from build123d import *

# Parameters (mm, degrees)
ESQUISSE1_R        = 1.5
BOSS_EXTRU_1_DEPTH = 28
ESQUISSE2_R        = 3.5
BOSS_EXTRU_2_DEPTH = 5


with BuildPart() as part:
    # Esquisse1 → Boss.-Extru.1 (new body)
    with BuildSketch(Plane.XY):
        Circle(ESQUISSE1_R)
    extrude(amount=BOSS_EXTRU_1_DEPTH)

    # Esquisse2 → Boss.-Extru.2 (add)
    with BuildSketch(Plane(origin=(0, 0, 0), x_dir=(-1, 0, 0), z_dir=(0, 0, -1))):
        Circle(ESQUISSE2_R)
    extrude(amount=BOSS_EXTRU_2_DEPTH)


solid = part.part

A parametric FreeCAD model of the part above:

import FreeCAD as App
import Part
import Sketcher

V = App.Vector

doc = App.newDocument("Part")
body = doc.addObject("PartDesign::Body", "Body")

# Sketch on XY plane
sketch1 = body.newObject("Sketcher::SketchObject", "Sketch")
sketch1.AttachmentSupport = (doc.getObject("XY_Plane"), [""])
sketch1.MapMode = "FlatFace"
sketch1.addGeometry(Part.Circle(V(0, 0, 0), V(0, 0, 1), 1.5), False)
sketch1.addConstraint([
    Sketcher.Constraint("Coincident", 0, 3, -1, 1),
    Sketcher.Constraint("Diameter", 0, 3.0),
])
pad1 = body.newObject("PartDesign::Pad", "Pad")
pad1.Profile = sketch1
pad1.Length = 28

# Sketch on XY plane
sketch2 = body.newObject("Sketcher::SketchObject", "Sketch001")
sketch2.AttachmentSupport = (doc.getObject("XY_Plane"), [""])
sketch2.MapMode = "FlatFace"
sketch2.addGeometry(Part.Circle(V(0, 0, 0), V(0, 0, 1), 3.5), False)
sketch2.addConstraint([
    Sketcher.Constraint("Coincident", 0, 3, -1, 1),
    Sketcher.Constraint("Diameter", 0, 7.0),
])
pad2 = body.newObject("PartDesign::Pad", "Pad001")
pad2.Profile = sketch2
pad2.Length = 5
pad2.Reversed = True

doc.recompute()
